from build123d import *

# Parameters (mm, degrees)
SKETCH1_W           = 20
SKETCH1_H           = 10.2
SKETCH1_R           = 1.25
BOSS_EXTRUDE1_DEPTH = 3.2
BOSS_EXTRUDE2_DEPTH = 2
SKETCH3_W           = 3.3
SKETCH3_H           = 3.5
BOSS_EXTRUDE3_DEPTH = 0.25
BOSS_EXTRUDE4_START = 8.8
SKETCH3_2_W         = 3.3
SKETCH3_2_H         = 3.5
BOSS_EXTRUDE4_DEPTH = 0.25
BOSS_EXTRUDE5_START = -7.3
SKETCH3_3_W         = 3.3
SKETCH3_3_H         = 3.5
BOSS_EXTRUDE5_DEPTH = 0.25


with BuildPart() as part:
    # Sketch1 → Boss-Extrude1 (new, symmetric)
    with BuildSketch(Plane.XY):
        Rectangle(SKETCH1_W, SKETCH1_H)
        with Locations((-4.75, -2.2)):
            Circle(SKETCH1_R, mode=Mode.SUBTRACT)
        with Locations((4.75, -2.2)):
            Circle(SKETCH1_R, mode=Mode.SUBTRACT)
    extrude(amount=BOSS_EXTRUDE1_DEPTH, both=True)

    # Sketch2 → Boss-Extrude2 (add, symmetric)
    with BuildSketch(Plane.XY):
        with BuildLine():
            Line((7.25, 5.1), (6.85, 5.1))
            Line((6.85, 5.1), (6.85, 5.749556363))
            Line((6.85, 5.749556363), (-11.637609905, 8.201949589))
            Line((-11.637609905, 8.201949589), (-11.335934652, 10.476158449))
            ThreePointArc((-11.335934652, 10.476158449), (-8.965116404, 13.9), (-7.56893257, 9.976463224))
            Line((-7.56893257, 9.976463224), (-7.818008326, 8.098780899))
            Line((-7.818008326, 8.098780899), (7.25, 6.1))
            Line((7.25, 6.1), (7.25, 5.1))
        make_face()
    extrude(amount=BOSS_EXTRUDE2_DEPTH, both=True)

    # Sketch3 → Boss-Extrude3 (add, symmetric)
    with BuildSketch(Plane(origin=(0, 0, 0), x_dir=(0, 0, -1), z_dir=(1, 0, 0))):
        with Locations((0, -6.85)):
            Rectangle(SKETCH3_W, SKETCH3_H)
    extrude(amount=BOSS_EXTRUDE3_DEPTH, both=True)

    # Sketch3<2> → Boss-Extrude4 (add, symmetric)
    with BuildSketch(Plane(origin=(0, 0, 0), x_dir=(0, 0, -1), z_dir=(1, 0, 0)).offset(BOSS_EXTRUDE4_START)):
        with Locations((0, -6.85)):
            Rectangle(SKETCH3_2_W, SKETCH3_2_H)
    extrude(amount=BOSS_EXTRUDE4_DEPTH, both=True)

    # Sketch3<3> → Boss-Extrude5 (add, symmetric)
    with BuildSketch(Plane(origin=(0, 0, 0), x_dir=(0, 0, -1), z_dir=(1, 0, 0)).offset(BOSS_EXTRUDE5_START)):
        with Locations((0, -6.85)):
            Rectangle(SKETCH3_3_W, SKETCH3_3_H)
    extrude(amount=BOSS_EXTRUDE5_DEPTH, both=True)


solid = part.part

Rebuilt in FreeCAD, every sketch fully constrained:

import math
import FreeCAD as App
import Part
import Sketcher
from FreeCAD import Vector


def add_polygon(sketch, points):
    """Adds a closed chain of lines whose ends are joined by coincident constraints."""
    first, n = sketch.GeometryCount, len(points)
    for a, b in zip(points, points[1:] + points[:1]):
        sketch.addGeometry(Part.LineSegment(App.Vector(*a, 0), App.Vector(*b, 0)), False)
    for i in range(n):
        sketch.addConstraint(Sketcher.Constraint("Coincident", first + i, 2, first + (i + 1) % n, 1))

doc = App.newDocument("Part")
body = doc.addObject("PartDesign::Body", "Body")

# Sketch on XY plane
sketch1 = body.newObject("Sketcher::SketchObject", "Sketch")
sketch1.AttachmentSupport = (doc.getObject("XY_Plane"), [""])
sketch1.MapMode = "FlatFace"
add_polygon(sketch1, [(-10, 5.1), (-10, -5.1), (10, -5.1), (10, 5.1)])  # lines 0-3
sketch1.addGeometry(Part.Circle(Vector(-4.8, -2.2, 0), Vector(0, 0, 1), 1.2), False)  # 4
sketch1.addGeometry(Part.Circle(Vector(4.8, -2.2, 0), Vector(0, 0, 1), 1.2), False)  # 5
sketch1.addConstraint(Sketcher.Constraint("Vertical", 0))
sketch1.addConstraint(Sketcher.Constraint("Horizontal", 1))
sketch1.addConstraint(Sketcher.Constraint("Vertical", 2))
sketch1.addConstraint(Sketcher.Constraint("Horizontal", 3))
sketch1.addConstraint(Sketcher.Constraint("Equal", 4, 5))
sketch1.addConstraint(Sketcher.Constraint("Symmetric", 0, 2, 2, 2, -1, 1))
sketch1.addConstraint(Sketcher.Constraint("Symmetric", 4, 3, 5, 3, -2))
sketch1.addConstraint(Sketcher.Constraint("Diameter", 4, 2.5))
sketch1.addConstraint(Sketcher.Constraint("DistanceX", 1, 1, 1, 2, 20.0))
sketch1.addConstraint(Sketcher.Constraint("DistanceY", 0, 2, 0, 1, 10.2))
sketch1.addConstraint(Sketcher.Constraint("DistanceY", 4, 3, -1, 1, 2.2))
sketch1.addConstraint(Sketcher.Constraint("DistanceX", 4, 3, 5, 3, 9.5))
pad1 = body.newObject("PartDesign::Pad", "Pad")
pad1.Profile = sketch1
pad1.Length = 6.4
pad1.Midplane = True

# Sketch on XY plane
sketch2 = body.newObject("Sketcher::SketchObject", "Sketch001")
sketch2.AttachmentSupport = (doc.getObject("XY_Plane"), [""])
sketch2.MapMode = "FlatFace"
sketch2.addGeometry(Part.LineSegment(Vector(6.85, 5.1, 0), Vector(7.25, 5.1, 0)), False)
sketch2.addGeometry(Part.LineSegment(Vector(7.25, 5.1, 0), Vector(7.25, 6.1, 0)), False)
sketch2.addGeometry(Part.LineSegment(Vector(7.25, 6.1, 0), Vector(-7.82, 8.1, 0)), False)
sketch2.addGeometry(Part.LineSegment(Vector(-7.82, 8.1, 0), Vector(-7.57, 9.98, 0)), False)
sketch2.addGeometry(Part.ArcOfCircle(Part.Circle(Vector(-9.27, 11.58, 0), Vector(0, 0, 1), 2.34), math.radians(-43), math.radians(208)), False)
sketch2.addGeometry(Part.LineSegment(Vector(-11.34, 10.48, 0), Vector(-11.64, 8.2, 0)), False)
sketch2.addGeometry(Part.LineSegment(Vector(-11.64, 8.2, 0), Vector(6.85, 5.75, 0)), False)
sketch2.addGeometry(Part.LineSegment(Vector(6.85, 5.75, 0), Vector(6.85, 5.1, 0)), False)
sketch2.addConstraint(Sketcher.Constraint("Coincident", 0, 2, 1, 1))
sketch2.addConstraint(Sketcher.Constraint("Coincident", 1, 2, 2, 1))
sketch2.addConstraint(Sketcher.Constraint("Coincident", 2, 2, 3, 1))
sketch2.addConstraint(Sketcher.Constraint("Coincident", 3, 2, 4, 1))
sketch2.addConstraint(Sketcher.Constraint("Coincident", 4, 2, 5, 1))
sketch2.addConstraint(Sketcher.Constraint("Coincident", 5, 2, 6, 1))
sketch2.addConstraint(Sketcher.Constraint("Coincident", 6, 2, 7, 1))
sketch2.addConstraint(Sketcher.Constraint("Coincident", 7, 2, 0, 1))
sketch2.addConstraint(Sketcher.Constraint("Horizontal", 0))
sketch2.addConstraint(Sketcher.Constraint("Vertical", 1))
sketch2.addConstraint(Sketcher.Constraint("Vertical", 7))
sketch2.addConstraint(Sketcher.Constraint("Perpendicular", 2, 3))
sketch2.addConstraint(Sketcher.Constraint("Parallel", 3, 5))
sketch2.addConstraint(Sketcher.Constraint("Perpendicular", 5, 6))
sketch2.addConstraint(Sketcher.Constraint("DistanceY", 1, 1, 1, 2, 1.0))
sketch2.addConstraint(Sketcher.Constraint("Radius", 4, 2.34))
sketch2.addConstraint(Sketcher.Constraint("DistanceX", 0, 1, 0, 2, 0.4))
sketch2.addConstraint(Sketcher.Constraint("Distance", 2, 15.2))
sketch2.addConstraint(Sketcher.Constraint("DistanceY", -1, 1, 0, 2, 5.1))
sketch2.addConstraint(Sketcher.Constraint("DistanceX", -1, 1, 0, 2, 7.25))
sketch2.addConstraint(Sketcher.Constraint("DistanceX", 5, 2, 2, 2, 3.819602))
sketch2.addConstraint(Sketcher.Constraint("Distance", 3, 1.89413))
sketch2.addConstraint(Sketcher.Constraint("Distance", 5, 2.29413))
sketch2.addConstraint(Sketcher.Constraint("DistanceY", 7, 2, 7, 1, 0.649556))
sketch2.addConstraint(Sketcher.Constraint("DistanceY", -1, 1, 4, 3, 11.58032))
pad2 = body.newObject("PartDesign::Pad", "Pad001")
pad2.Profile = sketch2
pad2.Length = 4
pad2.Midplane = True

# Sketch on YZ plane
sketch3 = body.newObject("Sketcher::SketchObject", "Sketch002")
sketch3.AttachmentSupport = (doc.getObject("YZ_Plane"), [""])
sketch3.MapMode = "FlatFace"
add_polygon(sketch3, [(-5.1, 1.6), (-8.6, 1.6), (-8.6, -1.6), (-5.1, -1.6)])  # lines 0-3
sketch3.addConstraint(Sketcher.Constraint("Horizontal", 0))
sketch3.addConstraint(Sketcher.Constraint("Vertical", 1))
sketch3.addConstraint(Sketcher.Constraint("Horizontal", 2))
sketch3.addConstraint(Sketcher.Constraint("Vertical", 3))
sketch3.addConstraint(Sketcher.Constraint("DistanceX", 0, 2, 0, 1, 3.5))
sketch3.addConstraint(Sketcher.Constraint("DistanceY", 1, 2, 1, 1, 3.3))
sketch3.addConstraint(Sketcher.Constraint("DistanceX", 0, 2, -1, 1, 8.6))
sketch3.addConstraint(Sketcher.Constraint("DistanceY", -1, 1, 0, 2, 1.65))
pad3 = body.newObject("PartDesign::Pad", "Pad002")
pad3.Profile = sketch3
pad3.Length = 0.5
pad3.Midplane = True

# Sketch on YZ plane
sketch4 = body.newObject("Sketcher::SketchObject", "Sketch003")
sketch4.AttachmentSupport = (doc.getObject("YZ_Plane"), [""])
sketch4.MapMode = "FlatFace"
sketch4.AttachmentOffset = App.Placement(Vector(0, 0, 8.8), App.Rotation())
add_polygon(sketch4, [(-5.1, 1.6), (-8.6, 1.6), (-8.6, -1.6), (-5.1, -1.6)])  # lines 0-3
sketch4.addConstraint(Sketcher.Constraint("Horizontal", 0))
sketch4.addConstraint(Sketcher.Constraint("Vertical", 1))
sketch4.addConstraint(Sketcher.Constraint("Horizontal", 2))
sketch4.addConstraint(Sketcher.Constraint("Vertical", 3))
sketch4.addConstraint(Sketcher.Constraint("DistanceX", 0, 2, 0, 1, 3.5))
sketch4.addConstraint(Sketcher.Constraint("DistanceY", 1, 2, 1, 1, 3.3))
sketch4.addConstraint(Sketcher.Constraint("DistanceX", 0, 2, -1, 1, 8.6))
sketch4.addConstraint(Sketcher.Constraint("DistanceY", -1, 1, 0, 2, 1.65))
pad4 = body.newObject("PartDesign::Pad", "Pad003")
pad4.Profile = sketch4
pad4.Length = 0.5
pad4.Midplane = True

# Sketch on YZ plane
sketch5 = body.newObject("Sketcher::SketchObject", "Sketch004")
sketch5.AttachmentSupport = (doc.getObject("YZ_Plane"), [""])
sketch5.MapMode = "FlatFace"
sketch5.AttachmentOffset = App.Placement(Vector(0, 0, -7.3), App.Rotation())
add_polygon(sketch5, [(-5.1, 1.6), (-8.6, 1.6), (-8.6, -1.6), (-5.1, -1.6)])  # lines 0-3
sketch5.addConstraint(Sketcher.Constraint("Horizontal", 0))
sketch5.addConstraint(Sketcher.Constraint("Vertical", 1))
sketch5.addConstraint(Sketcher.Constraint("Horizontal", 2))
sketch5.addConstraint(Sketcher.Constraint("Vertical", 3))
sketch5.addConstraint(Sketcher.Constraint("DistanceX", 0, 2, 0, 1, 3.5))
sketch5.addConstraint(Sketcher.Constraint("DistanceY", 1, 2, 1, 1, 3.3))
sketch5.addConstraint(Sketcher.Constraint("DistanceX", 0, 2, -1, 1, 8.6))
sketch5.addConstraint(Sketcher.Constraint("DistanceY", -1, 1, 0, 2, 1.65))
pad5 = body.newObject("PartDesign::Pad", "Pad004")
pad5.Profile = sketch5
pad5.Length = 0.5
pad5.Midplane = True

doc.recompute()
